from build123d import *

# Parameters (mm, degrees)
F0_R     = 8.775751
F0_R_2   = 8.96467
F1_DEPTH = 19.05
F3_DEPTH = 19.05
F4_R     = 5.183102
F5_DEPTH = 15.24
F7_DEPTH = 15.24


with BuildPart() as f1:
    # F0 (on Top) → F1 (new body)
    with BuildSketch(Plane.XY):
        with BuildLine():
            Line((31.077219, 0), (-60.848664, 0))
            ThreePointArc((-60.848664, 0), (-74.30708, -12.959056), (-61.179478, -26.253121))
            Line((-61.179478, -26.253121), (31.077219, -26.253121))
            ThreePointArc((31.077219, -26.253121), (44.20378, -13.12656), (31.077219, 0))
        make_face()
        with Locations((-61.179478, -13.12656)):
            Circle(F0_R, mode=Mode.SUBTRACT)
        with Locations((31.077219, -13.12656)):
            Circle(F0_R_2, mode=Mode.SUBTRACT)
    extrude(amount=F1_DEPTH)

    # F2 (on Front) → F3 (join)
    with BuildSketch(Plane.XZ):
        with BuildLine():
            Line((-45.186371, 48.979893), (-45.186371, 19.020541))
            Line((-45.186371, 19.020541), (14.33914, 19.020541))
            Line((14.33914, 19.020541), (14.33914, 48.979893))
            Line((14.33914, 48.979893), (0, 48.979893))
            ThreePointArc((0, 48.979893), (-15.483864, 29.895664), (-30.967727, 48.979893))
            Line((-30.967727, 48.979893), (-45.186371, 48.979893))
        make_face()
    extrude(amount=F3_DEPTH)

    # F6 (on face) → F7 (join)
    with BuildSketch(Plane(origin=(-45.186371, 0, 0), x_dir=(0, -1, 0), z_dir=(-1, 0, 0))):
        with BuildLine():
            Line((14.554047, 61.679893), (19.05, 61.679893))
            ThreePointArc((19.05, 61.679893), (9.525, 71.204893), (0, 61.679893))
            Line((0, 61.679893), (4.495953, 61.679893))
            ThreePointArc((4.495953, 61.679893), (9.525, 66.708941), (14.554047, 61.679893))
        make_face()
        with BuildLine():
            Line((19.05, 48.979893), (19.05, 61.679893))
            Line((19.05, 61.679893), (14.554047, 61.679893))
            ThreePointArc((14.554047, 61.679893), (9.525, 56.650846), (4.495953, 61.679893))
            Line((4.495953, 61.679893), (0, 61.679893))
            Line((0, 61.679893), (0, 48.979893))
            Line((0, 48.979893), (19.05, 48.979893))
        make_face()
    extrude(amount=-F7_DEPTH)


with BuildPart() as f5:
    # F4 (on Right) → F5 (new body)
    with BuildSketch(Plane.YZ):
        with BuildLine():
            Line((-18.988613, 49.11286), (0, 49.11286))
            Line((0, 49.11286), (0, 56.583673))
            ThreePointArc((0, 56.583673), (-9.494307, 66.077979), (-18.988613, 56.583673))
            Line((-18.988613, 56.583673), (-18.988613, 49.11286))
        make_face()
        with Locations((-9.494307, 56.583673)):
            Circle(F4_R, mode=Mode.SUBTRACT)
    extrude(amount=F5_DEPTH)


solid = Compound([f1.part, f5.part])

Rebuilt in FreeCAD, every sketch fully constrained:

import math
import FreeCAD as App
import Part
import Sketcher

V = App.Vector
Q = App.Units.Quantity

doc = App.newDocument("Part")
body = doc.addObject("PartDesign::Body", "Body")

sketch1 = body.newObject("Sketcher::SketchObject", "Sketch")
sketch1.AttachmentSupport = (doc.getObject("XY_Plane"), [""])
sketch1.MapMode = "FlatFace"
sketch1.addGeometry([
    Part.LineSegment(V(31.077219, 0, 0), V(-60.848664, 0, 0)),
    Part.ArcOfCircle(Part.Circle(V(-61.179477, -13.124476, 0), V(0, 0, 1), 13.128645), math.radians(88.556118), math.radians(269.999997)),
    Part.LineSegment(V(-61.179478, -26.253121, 0), V(31.077219, -26.253121, 0)),
    Part.ArcOfCircle(Part.Circle(V(31.07722, -13.126561, 0), V(0, 0, 1), 13.126561), math.radians(-90.000002), math.radians(90.000002)),
    Part.Circle(V(-61.179478, -13.12656, 0), V(0, 0, 1), 8.775751),
    Part.Circle(V(31.077219, -13.12656, 0), V(0, 0, 1), 8.96467),
], False)
sketch1.addConstraint([
    Sketcher.Constraint("Coincident", 0, 2, 1, 1),
    Sketcher.Constraint("Tangent", 1, 2, 2, 1),
    Sketcher.Constraint("Tangent", 2, 2, 3, 1),
    Sketcher.Constraint("Tangent", 3, 2, 0, 1),
    Sketcher.Constraint("Horizontal", 0),
    Sketcher.Constraint("Horizontal", 2),
    Sketcher.Constraint("Coincident", 5, 3, 3, 3),
    Sketcher.Constraint("PointOnObject", 0, 2, -1),
    Sketcher.Constraint("Horizontal", 3, 3, 4, 3),
    Sketcher.Constraint("Vertical", 1, 3, 4, 3),
    Sketcher.Constraint("Diameter", 4, 17.551502),
    Sketcher.Constraint("Diameter", 5, 17.92934),
    Sketcher.Constraint("Radius", 3, 13.126561),
    Sketcher.Constraint("Radius", 1, 13.128645),
    Sketcher.Constraint("DistanceX", 0, 2, 0, 1, 91.925883),
    Sketcher.Constraint("DistanceX", -1, 1, 3, 3, 31.07722),
])
pad1 = body.newObject("PartDesign::Pad", "Pad")
pad1.Profile = sketch1
pad1.Length = Q("0.75 in")

sketch2 = body.newObject("Sketcher::SketchObject", "Sketch001")
sketch2.AttachmentSupport = (doc.getObject("XZ_Plane"), [""])
sketch2.MapMode = "FlatFace"
sketch2.addGeometry([
    Part.LineSegment(V(-45, 49, 0), V(-45, 19, 0)),
    Part.LineSegment(V(-45, 19, 0), V(14, 19, 0)),
    Part.LineSegment(V(14, 19, 0), V(14, 49, 0)),
    Part.LineSegment(V(14, 49, 0), V(0, 49, 0)),
    Part.ArcOfCircle(Part.Circle(V(-15, 46, 0), V(0, 0, 1), 16), math.radians(168), math.radians(372)),
    Part.LineSegment(V(-31, 49, 0), V(-45, 49, 0)),
], False)
sketch2.addConstraint([
    Sketcher.Constraint("Coincident", 0, 2, 1, 1),
    Sketcher.Constraint("Coincident", 1, 2, 2, 1),
    Sketcher.Constraint("Coincident", 2, 2, 3, 1),
    Sketcher.Constraint("Coincident", 3, 2, 4, 2),
    Sketcher.Constraint("Coincident", 4, 1, 5, 1),
    Sketcher.Constraint("Coincident", 5, 2, 0, 1),
    Sketcher.Constraint("Vertical", 0),
    Sketcher.Constraint("Horizontal", 1),
    Sketcher.Constraint("Vertical", 2),
    Sketcher.Constraint("Horizontal", 3),
    Sketcher.Constraint("Horizontal", 5),
    Sketcher.Constraint("PointOnObject", 3, 2, -2),
    Sketcher.Constraint("Horizontal", 3, 2, 4, 1),
    Sketcher.Constraint("Radius", 4, 15.82348),
    Sketcher.Constraint("DistanceX", 1, 1, 1, 2, 59.525511),
    Sketcher.Constraint("DistanceX", 3, 2, 3, 1, 14.33914),
    Sketcher.Constraint("DistanceY", 0, 2, 0, 1, 29.959352),
    Sketcher.Constraint("DistanceX", 5, 2, 5, 1, 14.218644),
    Sketcher.Constraint("DistanceY", -1, 1, 0, 2, 19.020541),
])
pad2 = body.newObject("PartDesign::Pad", "Pad001")
pad2.Profile = sketch2
pad2.Length = Q("0.75 in")

sketch3 = body.newObject("Sketcher::SketchObject", "Sketch002")
sketch3.AttachmentSupport = (doc.getObject("YZ_Plane"), [""])
sketch3.MapMode = "FlatFace"
sketch3.AttachmentOffset = App.Placement(V(0, 0, -45.186371), App.Rotation())
sketch3.addGeometry([
    Part.ArcOfCircle(Part.Circle(V(-10, 62, 0), V(0, 0, 1), 10), math.radians(0), math.radians(180)),
    Part.LineSegment(V(0, 62, 0), V(0, 49, 0)),
    Part.LineSegment(V(0, 49, 0), V(-19, 49, 0)),
    Part.LineSegment(V(-19, 49, 0), V(-19, 62, 0)),
    Part.ArcOfCircle(Part.Circle(V(-10, 62, 0), V(0, 0, 1), 5), math.radians(0), math.radians(180)),
    Part.ArcOfCircle(Part.Circle(V(-10, 62, 0), V(0, 0, 1), 5), math.radians(180), math.radians(360)),
], False)
sketch3.addConstraint([
    Sketcher.Constraint("Tangent", 0, 1, 1, 1),
    Sketcher.Constraint("Coincident", 1, 2, 2, 1),
    Sketcher.Constraint("Coincident", 2, 2, 3, 1),
    Sketcher.Constraint("Tangent", 3, 2, 0, 2),
    Sketcher.Constraint("Tangent", 4, 1, 5, 2),
    Sketcher.Constraint("Coincident", 5, 1, 4, 2),
    Sketcher.Constraint("Vertical", 1),
    Sketcher.Constraint("Horizontal", 2),
    Sketcher.Constraint("Vertical", 3),
    Sketcher.Constraint("Coincident", 4, 3, 0, 3),
    Sketcher.Constraint("PointOnObject", 0, 1, -2),
    Sketcher.Constraint("Horizontal", 3, 2, 4, 1),
    Sketcher.Constraint("Horizontal", 4, 1, 5, 1),
    Sketcher.Constraint("DistanceY", 1, 2, 1, 1, Q("0.5 in")),
    Sketcher.Constraint("Radius", 0, Q("0.375 in")),
    Sketcher.Constraint("Radius", 4, 5.029047),
    Sketcher.Constraint("DistanceY", -1, 1, 0, 3, 61.679893),
])
pad3 = body.newObject("PartDesign::Pad", "Pad002")
pad3.Profile = sketch3
pad3.Length = Q("0.6 in")
body2 = doc.addObject("PartDesign::Body", "Body001")

sketch4 = body2.newObject("Sketcher::SketchObject", "Sketch003")
sketch4.AttachmentSupport = (doc.getObject("YZ_Plane001"), [""])
sketch4.MapMode = "FlatFace"
sketch4.addGeometry([
    Part.LineSegment(V(-19, 49, 0), V(0, 49, 0)),
    Part.LineSegment(V(0, 49, 0), V(0, 57, 0)),
    Part.ArcOfCircle(Part.Circle(V(-9, 57, 0), V(0, 0, 1), 9), math.radians(0), math.radians(180)),
    Part.LineSegment(V(-19, 57, 0), V(-19, 49, 0)),
    Part.Circle(V(-9, 57, 0), V(0, 0, 1), 5),
], False)
sketch4.addConstraint([
    Sketcher.Constraint("Coincident", 0, 2, 1, 1),
    Sketcher.Constraint("Tangent", 1, 2, 2, 1),
    Sketcher.Constraint("Tangent", 2, 2, 3, 1),
    Sketcher.Constraint("Coincident", 3, 2, 0, 1),
    Sketcher.Constraint("Horizontal", 0),
    Sketcher.Constraint("Vertical", 1),
    Sketcher.Constraint("Vertical", 3),
    Sketcher.Constraint("Coincident", 4, 3, 2, 3),
    Sketcher.Constraint("PointOnObject", 0, 2, -2),
    Sketcher.Constraint("Diameter", 4, 10.366204),
    Sketcher.Constraint("Radius", 2, 9.494307),
    Sketcher.Constraint("DistanceY", 1, 1, 1, 2, 7.470813),
    Sketcher.Constraint("DistanceY", -1, 1, 0, 2, 49.11286),
])
pad4 = body2.newObject("PartDesign::Pad", "Pad003")
pad4.Profile = sketch4
pad4.Length = Q("0.6 in")

doc.recompute()
